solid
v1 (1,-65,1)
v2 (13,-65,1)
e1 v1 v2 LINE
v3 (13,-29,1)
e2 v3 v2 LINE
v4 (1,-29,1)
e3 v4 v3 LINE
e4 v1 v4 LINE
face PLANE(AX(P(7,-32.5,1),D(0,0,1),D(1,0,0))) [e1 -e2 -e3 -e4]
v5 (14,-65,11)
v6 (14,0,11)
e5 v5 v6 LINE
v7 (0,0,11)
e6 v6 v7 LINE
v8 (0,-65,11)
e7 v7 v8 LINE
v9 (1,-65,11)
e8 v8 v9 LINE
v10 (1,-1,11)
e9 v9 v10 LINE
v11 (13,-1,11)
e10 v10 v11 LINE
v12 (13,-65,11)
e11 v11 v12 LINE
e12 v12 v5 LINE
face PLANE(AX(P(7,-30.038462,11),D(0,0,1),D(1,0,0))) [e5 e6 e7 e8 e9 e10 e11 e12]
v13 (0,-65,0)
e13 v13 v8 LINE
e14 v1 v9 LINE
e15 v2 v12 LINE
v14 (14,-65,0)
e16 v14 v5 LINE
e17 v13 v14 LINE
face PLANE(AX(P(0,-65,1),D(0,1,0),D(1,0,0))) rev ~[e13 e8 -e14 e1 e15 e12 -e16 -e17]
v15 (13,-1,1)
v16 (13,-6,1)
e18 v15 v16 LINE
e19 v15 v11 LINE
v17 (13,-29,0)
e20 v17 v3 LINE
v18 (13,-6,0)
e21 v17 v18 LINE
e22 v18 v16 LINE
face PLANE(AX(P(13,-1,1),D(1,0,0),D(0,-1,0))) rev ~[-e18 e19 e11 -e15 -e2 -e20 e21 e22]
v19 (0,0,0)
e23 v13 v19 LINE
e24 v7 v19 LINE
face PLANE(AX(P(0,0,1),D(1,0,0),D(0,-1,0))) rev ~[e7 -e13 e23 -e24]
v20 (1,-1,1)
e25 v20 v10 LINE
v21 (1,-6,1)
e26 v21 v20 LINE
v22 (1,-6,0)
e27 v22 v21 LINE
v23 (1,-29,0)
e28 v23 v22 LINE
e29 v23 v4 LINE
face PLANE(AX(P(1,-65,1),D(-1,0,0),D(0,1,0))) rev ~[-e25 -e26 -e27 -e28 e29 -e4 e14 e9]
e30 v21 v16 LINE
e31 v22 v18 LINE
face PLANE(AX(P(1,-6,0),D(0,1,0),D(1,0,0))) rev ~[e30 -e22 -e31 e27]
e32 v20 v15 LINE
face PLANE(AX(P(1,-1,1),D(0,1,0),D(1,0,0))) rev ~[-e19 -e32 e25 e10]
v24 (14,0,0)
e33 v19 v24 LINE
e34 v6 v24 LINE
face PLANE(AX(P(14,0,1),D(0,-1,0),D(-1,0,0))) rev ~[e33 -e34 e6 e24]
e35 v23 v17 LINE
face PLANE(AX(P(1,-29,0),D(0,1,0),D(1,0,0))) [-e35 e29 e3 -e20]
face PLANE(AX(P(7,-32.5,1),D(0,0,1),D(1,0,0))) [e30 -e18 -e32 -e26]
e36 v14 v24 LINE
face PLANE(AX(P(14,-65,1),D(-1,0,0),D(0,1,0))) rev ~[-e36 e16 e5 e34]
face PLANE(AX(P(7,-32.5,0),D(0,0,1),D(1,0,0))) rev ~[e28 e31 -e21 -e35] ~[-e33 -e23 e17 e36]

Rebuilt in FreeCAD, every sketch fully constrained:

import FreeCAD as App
import Part
import Sketcher

V = App.Vector

doc = App.newDocument("Part")
params = doc.addObject("Spreadsheet::Sheet", "Params")
for row, (alias, value) in enumerate([
    ("sketch1_width", "14 mm"),
    ("sketch1_width2", "12 mm"),
    ("sketch1_height", "65 mm"),
    ("sketch1_height2", "23 mm"),
    ("pad1_length", "1 mm"),
    ("sketch2_width", "1 mm"),
    ("sketch2_width2", "12 mm"),
    ("sketch2_height", "65 mm"),
    ("sketch2_height2", "64 mm"),
    ("pad2_length", "10 mm"),
], start=1):
    params.set(f"A{row}", alias)
    params.set(f"B{row}", "=" + value)
    params.setAlias(f"B{row}", alias)

body = doc.addObject("PartDesign::Body", "Body")

sketch1 = body.newObject("Sketcher::SketchObject", "Sketch")
sketch1.AttachmentSupport = (doc.getObject("XY_Plane"), [""])
sketch1.MapMode = "FlatFace"
sketch1.addGeometry(Part.LineSegment(V(0, 0, 0), V(0, -65, 0)), False)
sketch1.addGeometry(Part.LineSegment(V(0, -65, 0), V(14, -65, 0)), False)
sketch1.addGeometry(Part.LineSegment(V(14, -65, 0), V(14, 0, 0)), False)
sketch1.addGeometry(Part.LineSegment(V(14, 0, 0), V(0, 0, 0)), False)
sketch1.addGeometry(Part.LineSegment(V(13, -29, 0), V(1, -29, 0)), False)
sketch1.addGeometry(Part.LineSegment(V(1, -29, 0), V(1, -6, 0)), False)
sketch1.addGeometry(Part.LineSegment(V(1, -6, 0), V(13, -6, 0)), False)
sketch1.addGeometry(Part.LineSegment(V(13, -6, 0), V(13, -29, 0)), False)
sketch1.addConstraint(Sketcher.Constraint("Coincident", 0, 2, 1, 1))
sketch1.addConstraint(Sketcher.Constraint("Coincident", 1, 2, 2, 1))
sketch1.addConstraint(Sketcher.Constraint("Coincident", 2, 2, 3, 1))
sketch1.addConstraint(Sketcher.Constraint("Coincident", 3, 2, 0, 1))
sketch1.addConstraint(Sketcher.Constraint("Coincident", 4, 2, 5, 1))
sketch1.addConstraint(Sketcher.Constraint("Coincident", 5, 2, 6, 1))
sketch1.addConstraint(Sketcher.Constraint("Coincident", 6, 2, 7, 1))
sketch1.addConstraint(Sketcher.Constraint("Coincident", 7, 2, 4, 1))
sketch1.addConstraint(Sketcher.Constraint("Vertical", 0))
sketch1.addConstraint(Sketcher.Constraint("Horizontal", 1))
sketch1.addConstraint(Sketcher.Constraint("Vertical", 2))
sketch1.addConstraint(Sketcher.Constraint("Horizontal", 3))
sketch1.addConstraint(Sketcher.Constraint("Horizontal", 4))
sketch1.addConstraint(Sketcher.Constraint("Vertical", 5))
sketch1.addConstraint(Sketcher.Constraint("Horizontal", 6))
sketch1.addConstraint(Sketcher.Constraint("Vertical", 7))
sketch1.addConstraint(Sketcher.Constraint("Coincident", 3, 2, -1, 1))
sketch1.addConstraint(Sketcher.Constraint("DistanceX", 1, 1, 1, 2, 14.0))
sketch1.addConstraint(Sketcher.Constraint("DistanceX", 4, 2, 4, 1, 12.0))
sketch1.addConstraint(Sketcher.Constraint("DistanceY", 0, 2, 0, 1, 65.0))
sketch1.addConstraint(Sketcher.Constraint("DistanceY", 5, 1, 5, 2, 23.0))
sketch1.addConstraint(Sketcher.Constraint("DistanceX", -1, 1, 4, 2, 1.0))
sketch1.addConstraint(Sketcher.Constraint("DistanceY", 4, 2, -1, 1, 29.0))
sketch1.setExpression("Constraints[17]", "Params.sketch1_width")
sketch1.setExpression("Constraints[18]", "Params.sketch1_width2")
sketch1.setExpression("Constraints[19]", "Params.sketch1_height")
sketch1.setExpression("Constraints[20]", "Params.sketch1_height2")
pad1 = body.newObject("PartDesign::Pad", "Pad")
pad1.Profile = sketch1
pad1.setExpression("Length", "Params.pad1_length")

sketch2 = body.newObject("Sketcher::SketchObject", "Sketch001")
sketch2.AttachmentSupport = (doc.getObject("XY_Plane"), [""])
sketch2.MapMode = "FlatFace"
sketch2.AttachmentOffset = App.Placement(V(0, 0, 1), App.Rotation())
sketch2.addGeometry(Part.LineSegment(V(0, 0, 0), V(0, -65, 0)), False)
sketch2.addGeometry(Part.LineSegment(V(0, -65, 0), V(1, -65, 0)), False)
sketch2.addGeometry(Part.LineSegment(V(1, -65, 0), V(1, -1, 0)), False)
sketch2.addGeometry(Part.LineSegment(V(1, -1, 0), V(13, -1, 0)), False)
sketch2.addGeometry(Part.LineSegment(V(13, -1, 0), V(13, -65, 0)), False)
sketch2.addGeometry(Part.LineSegment(V(13, -65, 0), V(14, -65, 0)), False)
sketch2.addGeometry(Part.LineSegment(V(14, -65, 0), V(14, 0, 0)), False)
sketch2.addGeometry(Part.LineSegment(V(14, 0, 0), V(0, 0, 0)), False)
sketch2.addConstraint(Sketcher.Constraint("Coincident", 0, 2, 1, 1))
sketch2.addConstraint(Sketcher.Constraint("Coincident", 1, 2, 2, 1))
sketch2.addConstraint(Sketcher.Constraint("Coincident", 2, 2, 3, 1))
sketch2.addConstraint(Sketcher.Constraint("Coincident", 3, 2, 4, 1))
sketch2.addConstraint(Sketcher.Constraint("Coincident", 4, 2, 5, 1))
sketch2.addConstraint(Sketcher.Constraint("Coincident", 5, 2, 6, 1))
sketch2.addConstraint(Sketcher.Constraint("Coincident", 6, 2, 7, 1))
sketch2.addConstraint(Sketcher.Constraint("Coincident", 7, 2, 0, 1))
sketch2.addConstraint(Sketcher.Constraint("Vertical", 0))
sketch2.addConstraint(Sketcher.Constraint("Horizontal", 1))
sketch2.addConstraint(Sketcher.Constraint("Vertical", 2))
sketch2.addConstraint(Sketcher.Constraint("Horizontal", 3))
sketch2.addConstraint(Sketcher.Constraint("Vertical", 4))
sketch2.addConstraint(Sketcher.Constraint("Horizontal", 5))
sketch2.addConstraint(Sketcher.Constraint("Vertical", 6))
sketch2.addConstraint(Sketcher.Constraint("Horizontal", 7))
sketch2.addConstraint(Sketcher.Constraint("Coincident", 7, 2, -1, 1))
sketch2.addConstraint(Sketcher.Constraint("Horizontal", 1, 2, 4, 2))
sketch2.addConstraint(Sketcher.Constraint("Equal", 1, 5))
sketch2.addConstraint(Sketcher.Constraint("DistanceX", 1, 1, 1, 2, 1.0))
sketch2.addConstraint(Sketcher.Constraint("DistanceX", 3, 1, 3, 2, 12.0))
sketch2.addConstraint(Sketcher.Constraint("DistanceY", 0, 2, 0, 1, 65.0))
sketch2.addConstraint(Sketcher.Constraint("DistanceY", 2, 1, 2, 2, 64.0))
sketch2.setExpression("Constraints[19]", "Params.sketch2_width")
sketch2.setExpression("Constraints[20]", "Params.sketch2_width2")
sketch2.setExpression("Constraints[21]", "Params.sketch2_height")
sketch2.setExpression("Constraints[22]", "Params.sketch2_height2")
pad2 = body.newObject("PartDesign::Pad", "Pad001")
pad2.Profile = sketch2
pad2.setExpression("Length", "Params.pad2_length")

doc.recompute()
